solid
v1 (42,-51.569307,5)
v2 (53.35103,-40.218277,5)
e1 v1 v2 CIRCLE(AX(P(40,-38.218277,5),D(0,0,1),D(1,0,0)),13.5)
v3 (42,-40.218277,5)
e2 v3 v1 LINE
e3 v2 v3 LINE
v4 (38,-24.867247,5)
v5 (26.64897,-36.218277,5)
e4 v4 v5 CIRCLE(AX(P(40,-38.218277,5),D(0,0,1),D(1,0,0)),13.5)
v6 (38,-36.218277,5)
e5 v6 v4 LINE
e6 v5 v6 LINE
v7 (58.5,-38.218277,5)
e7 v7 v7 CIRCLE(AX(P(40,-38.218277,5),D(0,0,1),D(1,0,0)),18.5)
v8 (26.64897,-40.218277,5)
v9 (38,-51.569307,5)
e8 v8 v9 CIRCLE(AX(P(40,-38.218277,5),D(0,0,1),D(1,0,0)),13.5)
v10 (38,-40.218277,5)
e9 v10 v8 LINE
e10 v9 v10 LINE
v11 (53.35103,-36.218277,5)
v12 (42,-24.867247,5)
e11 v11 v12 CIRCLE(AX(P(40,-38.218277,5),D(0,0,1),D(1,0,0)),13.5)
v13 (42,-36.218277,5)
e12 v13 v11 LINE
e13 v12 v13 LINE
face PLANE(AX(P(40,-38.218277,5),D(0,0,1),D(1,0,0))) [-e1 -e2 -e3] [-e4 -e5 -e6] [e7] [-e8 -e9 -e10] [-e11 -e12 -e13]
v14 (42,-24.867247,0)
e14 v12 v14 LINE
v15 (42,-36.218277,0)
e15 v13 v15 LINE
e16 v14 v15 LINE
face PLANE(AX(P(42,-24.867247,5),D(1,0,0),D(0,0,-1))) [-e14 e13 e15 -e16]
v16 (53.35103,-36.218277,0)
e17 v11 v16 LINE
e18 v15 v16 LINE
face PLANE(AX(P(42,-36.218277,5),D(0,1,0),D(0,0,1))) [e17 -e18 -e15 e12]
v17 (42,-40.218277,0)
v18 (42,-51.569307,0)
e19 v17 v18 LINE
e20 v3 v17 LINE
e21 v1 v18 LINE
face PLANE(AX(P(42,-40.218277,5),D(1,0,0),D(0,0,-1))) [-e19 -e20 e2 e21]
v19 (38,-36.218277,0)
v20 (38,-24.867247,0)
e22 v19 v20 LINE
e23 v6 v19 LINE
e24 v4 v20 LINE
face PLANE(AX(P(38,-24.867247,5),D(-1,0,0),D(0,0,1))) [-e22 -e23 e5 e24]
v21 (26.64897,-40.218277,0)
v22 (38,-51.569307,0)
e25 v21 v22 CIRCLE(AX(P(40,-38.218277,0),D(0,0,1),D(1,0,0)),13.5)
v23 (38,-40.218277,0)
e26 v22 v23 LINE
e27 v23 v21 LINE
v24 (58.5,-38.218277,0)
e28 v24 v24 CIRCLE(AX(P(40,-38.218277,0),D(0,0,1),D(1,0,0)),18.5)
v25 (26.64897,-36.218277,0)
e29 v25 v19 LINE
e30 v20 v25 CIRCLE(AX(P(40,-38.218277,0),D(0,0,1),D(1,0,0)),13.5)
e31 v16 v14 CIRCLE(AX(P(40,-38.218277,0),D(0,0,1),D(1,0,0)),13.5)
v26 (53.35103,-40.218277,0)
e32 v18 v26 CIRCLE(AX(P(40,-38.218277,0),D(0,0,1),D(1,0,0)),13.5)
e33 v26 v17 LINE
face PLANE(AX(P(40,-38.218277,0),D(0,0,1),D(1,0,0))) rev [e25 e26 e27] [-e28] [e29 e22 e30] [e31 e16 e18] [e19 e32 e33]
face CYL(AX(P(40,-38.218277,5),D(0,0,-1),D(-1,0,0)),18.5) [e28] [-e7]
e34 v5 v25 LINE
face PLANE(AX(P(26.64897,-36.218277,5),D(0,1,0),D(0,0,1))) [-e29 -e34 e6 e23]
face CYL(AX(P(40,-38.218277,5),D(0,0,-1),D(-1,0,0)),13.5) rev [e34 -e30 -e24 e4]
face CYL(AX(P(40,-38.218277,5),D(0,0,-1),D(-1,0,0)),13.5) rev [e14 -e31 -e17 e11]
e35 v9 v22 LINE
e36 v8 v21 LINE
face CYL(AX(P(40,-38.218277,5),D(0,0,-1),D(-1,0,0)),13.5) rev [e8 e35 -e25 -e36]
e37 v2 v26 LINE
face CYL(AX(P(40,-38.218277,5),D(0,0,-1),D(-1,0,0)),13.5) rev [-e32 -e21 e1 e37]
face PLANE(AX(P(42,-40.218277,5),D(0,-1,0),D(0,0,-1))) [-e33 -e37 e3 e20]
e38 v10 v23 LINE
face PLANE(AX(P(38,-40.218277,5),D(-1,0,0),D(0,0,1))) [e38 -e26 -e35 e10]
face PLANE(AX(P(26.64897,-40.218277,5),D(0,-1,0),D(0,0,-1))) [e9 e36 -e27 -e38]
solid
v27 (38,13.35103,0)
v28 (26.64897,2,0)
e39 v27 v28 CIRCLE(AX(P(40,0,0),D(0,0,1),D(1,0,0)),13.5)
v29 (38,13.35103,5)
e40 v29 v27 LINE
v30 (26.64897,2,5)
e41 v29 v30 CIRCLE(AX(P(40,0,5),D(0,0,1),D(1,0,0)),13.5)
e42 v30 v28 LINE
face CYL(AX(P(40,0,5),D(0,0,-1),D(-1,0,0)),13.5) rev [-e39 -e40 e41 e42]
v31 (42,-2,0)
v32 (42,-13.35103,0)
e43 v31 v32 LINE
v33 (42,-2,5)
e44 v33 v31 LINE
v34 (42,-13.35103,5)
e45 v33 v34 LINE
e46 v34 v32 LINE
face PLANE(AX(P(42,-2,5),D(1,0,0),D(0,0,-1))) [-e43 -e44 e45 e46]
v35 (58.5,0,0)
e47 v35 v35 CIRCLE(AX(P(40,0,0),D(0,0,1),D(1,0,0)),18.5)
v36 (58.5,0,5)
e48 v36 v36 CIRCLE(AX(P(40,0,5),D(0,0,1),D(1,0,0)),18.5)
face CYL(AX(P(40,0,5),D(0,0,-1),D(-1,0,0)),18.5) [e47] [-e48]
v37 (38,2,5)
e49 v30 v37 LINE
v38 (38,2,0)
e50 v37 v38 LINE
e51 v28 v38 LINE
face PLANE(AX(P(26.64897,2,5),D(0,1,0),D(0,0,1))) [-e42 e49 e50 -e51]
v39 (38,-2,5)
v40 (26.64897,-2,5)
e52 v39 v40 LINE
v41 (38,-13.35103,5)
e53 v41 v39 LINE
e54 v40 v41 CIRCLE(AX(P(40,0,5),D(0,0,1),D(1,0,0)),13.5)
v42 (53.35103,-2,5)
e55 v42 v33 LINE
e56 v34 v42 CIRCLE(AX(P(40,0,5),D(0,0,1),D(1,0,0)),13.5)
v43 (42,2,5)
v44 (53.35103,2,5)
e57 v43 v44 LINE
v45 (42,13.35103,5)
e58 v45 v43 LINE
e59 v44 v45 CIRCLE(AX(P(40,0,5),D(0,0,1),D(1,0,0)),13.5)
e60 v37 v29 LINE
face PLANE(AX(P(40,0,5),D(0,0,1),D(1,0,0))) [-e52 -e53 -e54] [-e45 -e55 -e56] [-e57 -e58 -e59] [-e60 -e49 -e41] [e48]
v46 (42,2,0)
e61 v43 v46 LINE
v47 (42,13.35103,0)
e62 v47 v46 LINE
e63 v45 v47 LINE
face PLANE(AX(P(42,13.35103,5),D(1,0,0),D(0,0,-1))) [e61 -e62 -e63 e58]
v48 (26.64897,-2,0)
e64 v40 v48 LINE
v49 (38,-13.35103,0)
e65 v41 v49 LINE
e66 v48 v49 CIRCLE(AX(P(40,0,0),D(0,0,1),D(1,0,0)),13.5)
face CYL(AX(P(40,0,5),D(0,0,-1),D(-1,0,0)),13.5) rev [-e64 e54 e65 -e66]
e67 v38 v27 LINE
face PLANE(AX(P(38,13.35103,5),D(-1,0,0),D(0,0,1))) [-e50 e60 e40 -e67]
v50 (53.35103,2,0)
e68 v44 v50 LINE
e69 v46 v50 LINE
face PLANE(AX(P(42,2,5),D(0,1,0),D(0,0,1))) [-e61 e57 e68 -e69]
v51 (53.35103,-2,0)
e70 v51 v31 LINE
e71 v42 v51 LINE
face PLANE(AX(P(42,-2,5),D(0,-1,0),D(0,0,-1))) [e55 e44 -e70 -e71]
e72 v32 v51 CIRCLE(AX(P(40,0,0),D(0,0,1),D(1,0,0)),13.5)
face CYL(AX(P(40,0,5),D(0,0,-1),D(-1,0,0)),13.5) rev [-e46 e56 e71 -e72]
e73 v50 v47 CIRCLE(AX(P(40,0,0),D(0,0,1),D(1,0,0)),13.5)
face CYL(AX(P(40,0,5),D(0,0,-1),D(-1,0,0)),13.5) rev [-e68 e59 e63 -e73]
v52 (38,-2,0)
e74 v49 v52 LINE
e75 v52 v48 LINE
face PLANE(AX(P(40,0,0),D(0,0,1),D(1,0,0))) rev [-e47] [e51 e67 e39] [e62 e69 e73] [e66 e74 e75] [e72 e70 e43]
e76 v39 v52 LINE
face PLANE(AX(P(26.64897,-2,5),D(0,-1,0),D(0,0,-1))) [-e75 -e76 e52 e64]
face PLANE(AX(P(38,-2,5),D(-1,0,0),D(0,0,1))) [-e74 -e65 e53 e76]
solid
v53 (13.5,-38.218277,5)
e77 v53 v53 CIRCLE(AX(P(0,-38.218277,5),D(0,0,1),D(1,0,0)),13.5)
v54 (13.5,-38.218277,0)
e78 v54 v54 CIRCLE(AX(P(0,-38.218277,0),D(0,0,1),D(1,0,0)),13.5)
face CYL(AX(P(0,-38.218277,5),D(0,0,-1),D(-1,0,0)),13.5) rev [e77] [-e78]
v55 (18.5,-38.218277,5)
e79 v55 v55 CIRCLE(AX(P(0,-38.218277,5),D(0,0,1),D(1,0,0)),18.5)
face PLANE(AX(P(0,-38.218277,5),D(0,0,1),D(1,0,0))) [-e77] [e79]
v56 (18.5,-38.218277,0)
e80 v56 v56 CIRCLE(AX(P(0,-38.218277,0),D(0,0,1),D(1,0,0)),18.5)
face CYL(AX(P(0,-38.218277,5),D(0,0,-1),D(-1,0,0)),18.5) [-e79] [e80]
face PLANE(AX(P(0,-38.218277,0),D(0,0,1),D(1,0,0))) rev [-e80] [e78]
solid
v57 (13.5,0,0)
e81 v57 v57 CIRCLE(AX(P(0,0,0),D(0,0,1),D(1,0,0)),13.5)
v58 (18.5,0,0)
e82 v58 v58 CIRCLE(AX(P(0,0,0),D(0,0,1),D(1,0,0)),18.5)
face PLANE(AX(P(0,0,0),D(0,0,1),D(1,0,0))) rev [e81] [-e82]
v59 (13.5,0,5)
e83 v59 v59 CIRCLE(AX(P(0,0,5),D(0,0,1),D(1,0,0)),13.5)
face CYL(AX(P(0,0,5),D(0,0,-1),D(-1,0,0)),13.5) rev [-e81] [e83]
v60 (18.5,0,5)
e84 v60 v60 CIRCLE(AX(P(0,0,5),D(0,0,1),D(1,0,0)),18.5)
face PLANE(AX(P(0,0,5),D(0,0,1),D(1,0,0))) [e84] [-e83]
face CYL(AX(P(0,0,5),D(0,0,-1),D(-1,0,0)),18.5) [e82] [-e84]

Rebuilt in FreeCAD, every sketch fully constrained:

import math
import FreeCAD as App
import Part
import Sketcher

V = App.Vector

doc = App.newDocument("Part")
params = doc.addObject("Spreadsheet::Sheet", "Params")
for row, (alias, value) in enumerate([
    ("sketch1_diameter", "37 mm"),
    ("sketch1_diameter2", "27 mm"),
    ("pad1_length", "5 mm"),
    ("sketch2_diameter", "37 mm"),
    ("sketch2_radius", "13.5 mm"),
    ("pad2_length", "5 mm"),
    ("sketch3_diameter", "37 mm"),
    ("sketch3_diameter2", "27 mm"),
    ("pad3_length", "5 mm"),
    ("sketch4_diameter", "37 mm"),
    ("sketch4_radius", "13.5 mm"),
    ("pad4_length", "5 mm"),
], start=1):
    params.set(f"A{row}", alias)
    params.set(f"B{row}", "=" + value)
    params.setAlias(f"B{row}", alias)

body = doc.addObject("PartDesign::Body", "Body")

sketch1 = doc.addObject("Sketcher::SketchObject", "Sketch")
body.addObject(sketch1)
sketch1.AttachmentSupport = (doc.XY_Plane, [""])
sketch1.MapMode = "FlatFace"
sketch1.addGeometry([
    Part.Circle(V(0, 0, 0), V(0, 0, 1), 18.5),
    Part.Circle(V(0, 0, 0), V(0, 0, 1), 13.5),
], False)
sketch1.addConstraint([
    Sketcher.Constraint("Coincident", 0, 3, -1, 1),
    Sketcher.Constraint("Coincident", 1, 3, -1, 1),
    Sketcher.Constraint("Diameter", 0, 37.0),
    Sketcher.Constraint("Diameter", 1, 27.0),
])
sketch1.setExpression("Constraints[2]", "Params.sketch1_diameter")
sketch1.setExpression("Constraints[3]", "Params.sketch1_diameter2")
pad1 = doc.addObject("PartDesign::Pad", "Pad")
body.addObject(pad1)
pad1.Profile = sketch1
pad1.setExpression("Length", "Params.pad1_length")
body2 = doc.addObject("PartDesign::Body", "Body001")

sketch2 = doc.addObject("Sketcher::SketchObject", "Sketch001")
body2.addObject(sketch2)
sketch2.AttachmentSupport = (doc.getObject("XY_Plane001"), [""])
sketch2.MapMode = "FlatFace"
sketch2.addGeometry([
    Part.Circle(V(40, 0, 0), V(0, 0, 1), 18.5),
    Part.ArcOfCircle(Part.Circle(V(40, 0, 0), V(0, 0, 1), 13.5), math.radians(-171.480376), math.radians(-98.519624)),
    Part.LineSegment(V(26.64897, -2, 0), V(38, -2, 0)),
    Part.LineSegment(V(38, -2, 0), V(38, -13.35103, 0)),
    Part.LineSegment(V(42, -13.35103, 0), V(42, -2, 0)),
    Part.LineSegment(V(42, -2, 0), V(53.35103, -2, 0)),
    Part.ArcOfCircle(Part.Circle(V(40, 0, 0), V(0, 0, 1), 13.5), math.radians(-81.480376), math.radians(-8.519624)),
    Part.ArcOfCircle(Part.Circle(V(40, 0, 0), V(0, 0, 1), 13.5), math.radians(98.519624), math.radians(171.480376)),
    Part.LineSegment(V(38, 13.35103, 0), V(38, 2, 0)),
    Part.LineSegment(V(38, 2, 0), V(26.64897, 2, 0)),
    Part.LineSegment(V(42, 2, 0), V(42, 13.35103, 0)),
    Part.ArcOfCircle(Part.Circle(V(40, 0, 0), V(0, 0, 1), 13.5), math.radians(8.519624), math.radians(81.480376)),
    Part.LineSegment(V(53.35103, 2, 0), V(42, 2, 0)),
], False)
sketch2.addConstraint([
    Sketcher.Constraint("Coincident", 1, 1, 2, 1),
    Sketcher.Constraint("Coincident", 2, 2, 3, 1),
    Sketcher.Constraint("Coincident", 3, 2, 1, 2),
    Sketcher.Constraint("Coincident", 4, 2, 5, 1),
    Sketcher.Constraint("Coincident", 5, 2, 6, 2),
    Sketcher.Constraint("Coincident", 6, 1, 4, 1),
    Sketcher.Constraint("Coincident", 7, 1, 8, 1),
    Sketcher.Constraint("Coincident", 8, 2, 9, 1),
    Sketcher.Constraint("Coincident", 9, 2, 7, 2),
    Sketcher.Constraint("Coincident", 10, 2, 11, 2),
    Sketcher.Constraint("Coincident", 11, 1, 12, 1),
    Sketcher.Constraint("Coincident", 12, 2, 10, 1),
    Sketcher.Constraint("Horizontal", 2),
    Sketcher.Constraint("Vertical", 3),
    Sketcher.Constraint("Vertical", 4),
    Sketcher.Constraint("Horizontal", 5),
    Sketcher.Constraint("Vertical", 8),
    Sketcher.Constraint("Horizontal", 9),
    Sketcher.Constraint("Vertical", 10),
    Sketcher.Constraint("Horizontal", 12),
    Sketcher.Constraint("Coincident", 1, 3, 0, 3),
    Sketcher.Constraint("Coincident", 6, 3, 0, 3),
    Sketcher.Constraint("Coincident", 7, 3, 0, 3),
    Sketcher.Constraint("Coincident", 11, 3, 0, 3),
    Sketcher.Constraint("Equal", 1, 6),
    Sketcher.Constraint("Equal", 6, 7),
    Sketcher.Constraint("Equal", 7, 11),
    Sketcher.Constraint("Symmetric", 3, 2, 7, 1, -1),
    Sketcher.Constraint("Symmetric", 4, 2, 12, 2, -1),
    Sketcher.Constraint("Horizontal", 2, 2, 4, 2),
    Sketcher.Constraint("Horizontal", 3, 2, 6, 1),
    Sketcher.Constraint("Horizontal", 9, 2, 11, 1),
    Sketcher.Constraint("Equal", 12, 3),
    Sketcher.Constraint("Diameter", 0, 37.0),
    Sketcher.Constraint("Radius", 1, 13.5),
    Sketcher.Constraint("DistanceX", -1, 1, 0, 3, 40.0),
    Sketcher.Constraint("DistanceY", 1, 1, -1, 1, 2.0),
])
sketch2.setExpression("Constraints[33]", "Params.sketch2_diameter")
sketch2.setExpression("Constraints[34]", "Params.sketch2_radius")
pad2 = doc.addObject("PartDesign::Pad", "Pad001")
body2.addObject(pad2)
pad2.Profile = sketch2
pad2.setExpression("Length", "Params.pad2_length")
body3 = doc.addObject("PartDesign::Body", "Body002")

sketch3 = doc.addObject("Sketcher::SketchObject", "Sketch002")
body3.addObject(sketch3)
sketch3.AttachmentSupport = (doc.getObject("XY_Plane002"), [""])
sketch3.MapMode = "FlatFace"
sketch3.addGeometry([
    Part.Circle(V(0, -38.218277, 0), V(0, 0, 1), 18.5),
    Part.Circle(V(0, -38.218277, 0), V(0, 0, 1), 13.5),
], False)
sketch3.addConstraint([
    Sketcher.Constraint("Coincident", 1, 3, 0, 3),
    Sketcher.Constraint("PointOnObject", 0, 3, -2),
    Sketcher.Constraint("Diameter", 0, 37.0),
    Sketcher.Constraint("Diameter", 1, 27.0),
    Sketcher.Constraint("DistanceY", 0, 3, -1, 1, 38.218277),
])
sketch3.setExpression("Constraints[2]", "Params.sketch3_diameter")
sketch3.setExpression("Constraints[3]", "Params.sketch3_diameter2")
pad3 = doc.addObject("PartDesign::Pad", "Pad002")
body3.addObject(pad3)
pad3.Profile = sketch3
pad3.setExpression("Length", "Params.pad3_length")
body4 = doc.addObject("PartDesign::Body", "Body003")

sketch4 = doc.addObject("Sketcher::SketchObject", "Sketch003")
body4.addObject(sketch4)
sketch4.AttachmentSupport = (doc.getObject("XY_Plane003"), [""])
sketch4.MapMode = "FlatFace"
sketch4.addGeometry([
    Part.Circle(V(40, -38.218277, 0), V(0, 0, 1), 18.5),
    Part.LineSegment(V(26.64897, -40.218277, 0), V(38, -40.218277, 0)),
    Part.LineSegment(V(38, -40.218277, 0), V(38, -51.569307, 0)),
    Part.ArcOfCircle(Part.Circle(V(40, -38.218277, 0), V(0, 0, 1), 13.5), math.radians(-171.480376), math.radians(-98.519624)),
    Part.LineSegment(V(42, -51.569307, 0), V(42, -40.218277, 0)),
    Part.LineSegment(V(42, -40.218277, 0), V(53.35103, -40.218277, 0)),
    Part.ArcOfCircle(Part.Circle(V(40, -38.218277, 0), V(0, 0, 1), 13.5), math.radians(-81.480376), math.radians(-8.519624)),
    Part.LineSegment(V(38, -36.218277, 0), V(26.64897, -36.218277, 0)),
    Part.ArcOfCircle(Part.Circle(V(40, -38.218277, 0), V(0, 0, 1), 13.5), math.radians(98.519624), math.radians(171.480376)),
    Part.LineSegment(V(38, -24.867247, 0), V(38, -36.218277, 0)),
    Part.LineSegment(V(53.35103, -36.218277, 0), V(42, -36.218277, 0)),
    Part.LineSegment(V(42, -36.218277, 0), V(42, -24.867247, 0)),
    Part.ArcOfCircle(Part.Circle(V(40, -38.218277, 0), V(0, 0, 1), 13.5), math.radians(8.519624), math.radians(81.480376)),
], False)
sketch4.addConstraint([
    Sketcher.Constraint("Coincident", 1, 2, 2, 1),
    Sketcher.Constraint("Coincident", 2, 2, 3, 2),
    Sketcher.Constraint("Coincident", 3, 1, 1, 1),
    Sketcher.Constraint("Coincident", 4, 2, 5, 1),
    Sketcher.Constraint("Coincident", 5, 2, 6, 2),
    Sketcher.Constraint("Coincident", 6, 1, 4, 1),
    Sketcher.Constraint("Coincident", 7, 2, 8, 2),
    Sketcher.Constraint("Coincident", 8, 1, 9, 1),
    Sketcher.Constraint("Coincident", 9, 2, 7, 1),
    Sketcher.Constraint("Coincident", 10, 2, 11, 1),
    Sketcher.Constraint("Coincident", 11, 2, 12, 2),
    Sketcher.Constraint("Coincident", 12, 1, 10, 1),
    Sketcher.Constraint("Horizontal", 1),
    Sketcher.Constraint("Vertical", 2),
    Sketcher.Constraint("Vertical", 4),
    Sketcher.Constraint("Horizontal", 5),
    Sketcher.Constraint("Horizontal", 7),
    Sketcher.Constraint("Vertical", 9),
    Sketcher.Constraint("Horizontal", 10),
    Sketcher.Constraint("Vertical", 11),
    Sketcher.Constraint("Coincident", 3, 3, 0, 3),
    Sketcher.Constraint("Coincident", 6, 3, 0, 3),
    Sketcher.Constraint("Coincident", 8, 3, 0, 3),
    Sketcher.Constraint("Coincident", 12, 3, 0, 3),
    Sketcher.Constraint("Equal", 3, 6),
    Sketcher.Constraint("Equal", 6, 8),
    Sketcher.Constraint("Equal", 8, 12),
    Sketcher.Constraint("Horizontal", 3, 1, 4, 2),
    Sketcher.Constraint("Horizontal", 2, 2, 6, 1),
    Sketcher.Constraint("Horizontal", 9, 2, 10, 2),
    Sketcher.Constraint("Horizontal", 8, 1, 11, 2),
    Sketcher.Constraint("Vertical", 3, 1, 7, 2),
    Sketcher.Constraint("Vertical", 2, 2, 8, 1),
    Sketcher.Constraint("Equal", 10, 2),
    Sketcher.Constraint("Diameter", 0, 37.0),
    Sketcher.Constraint("Radius", 3, 13.5),
    Sketcher.Constraint("DistanceX", -1, 1, 0, 3, 40.0),
    Sketcher.Constraint("DistanceX", -1, 1, 1, 2, 38.0),
    Sketcher.Constraint("DistanceY", 0, 3, -1, 1, 38.218277),
])
sketch4.setExpression("Constraints[34]", "Params.sketch4_diameter")
sketch4.setExpression("Constraints[35]", "Params.sketch4_radius")
pad4 = doc.addObject("PartDesign::Pad", "Pad003")
body4.addObject(pad4)
pad4.Profile = sketch4
pad4.setExpression("Length", "Params.pad4_length")

doc.recompute()
